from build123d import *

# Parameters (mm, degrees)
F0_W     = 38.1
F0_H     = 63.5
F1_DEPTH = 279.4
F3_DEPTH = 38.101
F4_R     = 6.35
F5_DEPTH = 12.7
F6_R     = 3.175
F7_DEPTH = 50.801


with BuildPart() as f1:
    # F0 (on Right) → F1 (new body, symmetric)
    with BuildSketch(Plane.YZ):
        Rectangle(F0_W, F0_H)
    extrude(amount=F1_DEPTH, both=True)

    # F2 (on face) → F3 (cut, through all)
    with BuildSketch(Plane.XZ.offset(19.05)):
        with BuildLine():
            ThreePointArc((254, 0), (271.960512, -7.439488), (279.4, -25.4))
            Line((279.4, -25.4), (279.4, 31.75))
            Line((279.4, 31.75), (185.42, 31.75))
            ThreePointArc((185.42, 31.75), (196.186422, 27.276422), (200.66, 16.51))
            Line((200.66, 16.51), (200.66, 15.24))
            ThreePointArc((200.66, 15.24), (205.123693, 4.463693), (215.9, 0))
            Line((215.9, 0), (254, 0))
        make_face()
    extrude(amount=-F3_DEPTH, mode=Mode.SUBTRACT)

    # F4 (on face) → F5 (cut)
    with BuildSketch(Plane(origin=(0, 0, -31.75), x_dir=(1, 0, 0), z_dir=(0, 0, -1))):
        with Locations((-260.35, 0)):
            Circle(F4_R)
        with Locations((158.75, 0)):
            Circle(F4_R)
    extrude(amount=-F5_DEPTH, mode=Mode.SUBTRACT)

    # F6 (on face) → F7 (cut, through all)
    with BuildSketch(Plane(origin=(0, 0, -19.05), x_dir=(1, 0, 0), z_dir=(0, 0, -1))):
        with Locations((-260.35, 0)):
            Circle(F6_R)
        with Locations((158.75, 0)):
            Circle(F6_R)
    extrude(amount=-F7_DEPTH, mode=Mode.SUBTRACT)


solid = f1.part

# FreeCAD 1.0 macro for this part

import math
import FreeCAD as App
import Part
import Sketcher
from FreeCAD import Vector
Q = App.Units.Quantity

doc = App.newDocument("Part")
body = doc.addObject("PartDesign::Body", "Body")

sketch1 = doc.addObject("Sketcher::SketchObject", "Sketch")
body.addObject(sketch1)
sketch1.AttachmentSupport = (doc.YZ_Plane, [""])
sketch1.MapMode = "FlatFace"
sketch1.addGeometry(Part.LineSegment(Vector(-19, 32, 0), Vector(-19, -32, 0)), False)
sketch1.addGeometry(Part.LineSegment(Vector(-19, -32, 0), Vector(19, -32, 0)), False)
sketch1.addGeometry(Part.LineSegment(Vector(19, -32, 0), Vector(19, 32, 0)), False)
sketch1.addGeometry(Part.LineSegment(Vector(19, 32, 0), Vector(-19, 32, 0)), False)
sketch1.addConstraint(Sketcher.Constraint("Coincident", 0, 2, 1, 1))
sketch1.addConstraint(Sketcher.Constraint("Coincident", 1, 2, 2, 1))
sketch1.addConstraint(Sketcher.Constraint("Coincident", 2, 2, 3, 1))
sketch1.addConstraint(Sketcher.Constraint("Coincident", 3, 2, 0, 1))
sketch1.addConstraint(Sketcher.Constraint("Vertical", 0))
sketch1.addConstraint(Sketcher.Constraint("Horizontal", 1))
sketch1.addConstraint(Sketcher.Constraint("Vertical", 2))
sketch1.addConstraint(Sketcher.Constraint("Horizontal", 3))
sketch1.addConstraint(Sketcher.Constraint("Symmetric", 0, 2, 2, 2, -1, 1))
sketch1.addConstraint(Sketcher.Constraint("DistanceX", 1, 1, 1, 2, Q("1.5 in")))
sketch1.addConstraint(Sketcher.Constraint("DistanceY", 0, 2, 0, 1, Q("2.5 in")))
pad1 = doc.addObject("PartDesign::Pad", "Pad")
body.addObject(pad1)
pad1.Profile = sketch1
pad1.Length = Q("22 in")
pad1.Midplane = True

sketch2 = doc.addObject("Sketcher::SketchObject", "Sketch001")
body.addObject(sketch2)
sketch2.AttachmentSupport = (doc.XZ_Plane, [""])
sketch2.MapMode = "FlatFace"
sketch2.AttachmentOffset = App.Placement(Vector(0, 0, 0.75 * 25.4), App.Rotation())
sketch2.addGeometry(Part.ArcOfCircle(Part.Circle(Vector(254, -25.4, 0), Vector(0, 0, 1), 25.4), math.radians(0), math.radians(90)), False)
sketch2.addGeometry(Part.LineSegment(Vector(279.4, -25.4, 0), Vector(279.4, 31.8, 0)), False)
sketch2.addGeometry(Part.LineSegment(Vector(279.4, 31.8, 0), Vector(185.4, 31.8, 0)), False)
sketch2.addGeometry(Part.ArcOfCircle(Part.Circle(Vector(185.4, 16.5, 0), Vector(0, 0, 1), 15.3), math.radians(0), math.radians(90)), False)
sketch2.addGeometry(Part.LineSegment(Vector(200.7, 16.5, 0), Vector(200.7, 15.2, 0)), False)
sketch2.addGeometry(Part.ArcOfCircle(Part.Circle(Vector(215.9, 15.2, 0), Vector(0, 0, 1), 15.2), math.radians(-180), math.radians(-90)), False)
sketch2.addGeometry(Part.LineSegment(Vector(215.9, 0, 0), Vector(254, 0, 0)), False)
sketch2.addConstraint(Sketcher.Constraint("Tangent", 0, 1, 1, 1))
sketch2.addConstraint(Sketcher.Constraint("Coincident", 1, 2, 2, 1))
sketch2.addConstraint(Sketcher.Constraint("Coincident", 2, 2, 3, 2))
sketch2.addConstraint(Sketcher.Constraint("Coincident", 3, 1, 4, 1))
sketch2.addConstraint(Sketcher.Constraint("Tangent", 4, 2, 5, 1))
sketch2.addConstraint(Sketcher.Constraint("Tangent", 5, 2, 6, 1))
sketch2.addConstraint(Sketcher.Constraint("Tangent", 6, 2, 0, 2))
sketch2.addConstraint(Sketcher.Constraint("Vertical", 1))
sketch2.addConstraint(Sketcher.Constraint("Horizontal", 2))
sketch2.addConstraint(Sketcher.Constraint("Vertical", 4))
sketch2.addConstraint(Sketcher.Constraint("Horizontal", 6))
sketch2.addConstraint(Sketcher.Constraint("PointOnObject", 5, 2, -1))
sketch2.addConstraint(Sketcher.Constraint("Radius", 0, Q("1 in")))
sketch2.addConstraint(Sketcher.Constraint("Radius", 5, Q("0.6 in")))
sketch2.addConstraint(Sketcher.Constraint("DistanceX", 2, 2, 2, 1, Q("3.7 in")))
sketch2.addConstraint(Sketcher.Constraint("DistanceX", 6, 1, 6, 2, Q("1.5 in")))
sketch2.addConstraint(Sketcher.Constraint("DistanceX", -1, 1, 0, 3, Q("10 in")))
sketch2.addConstraint(Sketcher.Constraint("DistanceY", 1, 1, 1, 2, Q("2.25 in")))
sketch2.addConstraint(Sketcher.Constraint("DistanceY", 4, 2, 4, 1, Q("0.05 in")))
sketch2.addConstraint(Sketcher.Constraint("Radius", 3, 15.273879))
pocket1 = doc.addObject("PartDesign::Pocket", "Pocket")
body.addObject(pocket1)
pocket1.Profile = sketch2
pocket1.Type = "ThroughAll"

sketch3 = doc.addObject("Sketcher::SketchObject", "Sketch002")
body.addObject(sketch3)
sketch3.AttachmentSupport = (doc.XY_Plane, [""])
sketch3.MapMode = "FlatFace"
sketch3.AttachmentOffset = App.Placement(Vector(0, 0, -1.25 * 25.4), App.Rotation())
sketch3.addGeometry(Part.Circle(Vector(-260, 0, 0), Vector(0, 0, 1), 6), False)
sketch3.addGeometry(Part.Circle(Vector(159, 0, 0), Vector(0, 0, 1), 6), False)
sketch3.addConstraint(Sketcher.Constraint("Equal", 0, 1))
sketch3.addConstraint(Sketcher.Constraint("PointOnObject", 0, 3, -1))
sketch3.addConstraint(Sketcher.Constraint("PointOnObject", 1, 3, -1))
sketch3.addConstraint(Sketcher.Constraint("Diameter", 0, Q("0.5 in")))
sketch3.addConstraint(Sketcher.Constraint("DistanceX", 0, 3, 1, 3, Q("16.5 in")))
sketch3.addConstraint(Sketcher.Constraint("DistanceX", 0, 3, -1, 1, Q("10.25 in")))
pocket2 = doc.addObject("PartDesign::Pocket", "Pocket001")
body.addObject(pocket2)
pocket2.Profile = sketch3
pocket2.Length = Q("0.5 in")
pocket2.Reversed = True

sketch4 = doc.addObject("Sketcher::SketchObject", "Sketch003")
body.addObject(sketch4)
sketch4.AttachmentSupport = (doc.XY_Plane, [""])
sketch4.MapMode = "FlatFace"
sketch4.AttachmentOffset = App.Placement(Vector(0, 0, -0.75 * 25.4), App.Rotation())
sketch4.addGeometry(Part.Circle(Vector(-260.4, 0, 0), Vector(0, 0, 1), 3.2), False)
sketch4.addGeometry(Part.Circle(Vector(158.8, 0, 0), Vector(0, 0, 1), 3.2), False)
sketch4.addConstraint(Sketcher.Constraint("Equal", 0, 1))
sketch4.addConstraint(Sketcher.Constraint("PointOnObject", 0, 3, -1))
sketch4.addConstraint(Sketcher.Constraint("PointOnObject", 1, 3, -1))
sketch4.addConstraint(Sketcher.Constraint("Diameter", 0, Q("0.25 in")))
sketch4.addConstraint(Sketcher.Constraint("DistanceX", 0, 3, 1, 3, Q("16.5 in")))
sketch4.addConstraint(Sketcher.Constraint("DistanceX", 0, 3, -1, 1, Q("10.25 in")))
pocket3 = doc.addObject("PartDesign::Pocket", "Pocket002")
body.addObject(pocket3)
pocket3.Profile = sketch4
pocket3.Type = "ThroughAll"
pocket3.Reversed = True

doc.recompute()
